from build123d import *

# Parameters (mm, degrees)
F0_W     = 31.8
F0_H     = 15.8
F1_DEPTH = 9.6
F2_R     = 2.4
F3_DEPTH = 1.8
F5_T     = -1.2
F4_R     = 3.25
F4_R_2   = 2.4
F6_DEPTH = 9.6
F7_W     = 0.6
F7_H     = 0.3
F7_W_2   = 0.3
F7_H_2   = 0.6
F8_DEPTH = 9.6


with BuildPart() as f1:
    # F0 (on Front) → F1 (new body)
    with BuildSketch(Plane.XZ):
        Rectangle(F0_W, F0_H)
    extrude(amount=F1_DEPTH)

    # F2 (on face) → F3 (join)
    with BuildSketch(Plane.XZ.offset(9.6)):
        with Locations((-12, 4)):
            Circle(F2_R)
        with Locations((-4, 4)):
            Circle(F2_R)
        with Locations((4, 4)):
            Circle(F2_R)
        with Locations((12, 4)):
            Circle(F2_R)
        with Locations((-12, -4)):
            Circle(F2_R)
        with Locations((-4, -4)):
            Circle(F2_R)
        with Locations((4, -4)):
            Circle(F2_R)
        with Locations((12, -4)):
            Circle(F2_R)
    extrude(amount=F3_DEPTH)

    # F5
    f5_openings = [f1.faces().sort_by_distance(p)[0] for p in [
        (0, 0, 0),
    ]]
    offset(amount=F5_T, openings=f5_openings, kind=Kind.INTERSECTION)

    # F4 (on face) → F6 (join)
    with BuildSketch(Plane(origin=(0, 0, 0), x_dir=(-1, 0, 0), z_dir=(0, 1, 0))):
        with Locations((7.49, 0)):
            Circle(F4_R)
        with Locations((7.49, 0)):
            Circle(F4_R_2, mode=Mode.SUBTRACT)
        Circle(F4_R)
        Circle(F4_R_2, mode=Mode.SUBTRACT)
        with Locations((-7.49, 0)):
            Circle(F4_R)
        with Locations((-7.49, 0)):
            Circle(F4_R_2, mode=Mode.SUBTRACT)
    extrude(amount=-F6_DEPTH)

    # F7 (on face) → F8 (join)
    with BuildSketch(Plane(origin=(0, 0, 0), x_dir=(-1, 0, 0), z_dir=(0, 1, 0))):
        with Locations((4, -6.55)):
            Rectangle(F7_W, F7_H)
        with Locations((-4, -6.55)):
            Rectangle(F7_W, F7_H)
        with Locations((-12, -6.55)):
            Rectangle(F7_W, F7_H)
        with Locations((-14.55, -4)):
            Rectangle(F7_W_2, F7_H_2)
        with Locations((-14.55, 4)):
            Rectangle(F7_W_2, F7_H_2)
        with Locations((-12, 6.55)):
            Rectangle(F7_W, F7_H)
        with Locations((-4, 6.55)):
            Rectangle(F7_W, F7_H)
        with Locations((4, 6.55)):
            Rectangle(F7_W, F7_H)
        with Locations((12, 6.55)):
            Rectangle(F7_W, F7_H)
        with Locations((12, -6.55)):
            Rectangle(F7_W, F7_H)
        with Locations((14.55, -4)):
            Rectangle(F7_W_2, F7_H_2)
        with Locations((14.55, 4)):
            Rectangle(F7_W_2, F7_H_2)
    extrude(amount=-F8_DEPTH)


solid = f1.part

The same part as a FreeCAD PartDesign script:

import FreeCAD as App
import Part
import Sketcher
Q = App.Units.Quantity


def faces_at(feature, points):
    """Names of the faces that lie closest to the given points."""
    faces = feature.Shape.Faces
    near = lambda p: min(range(len(faces)), key=lambda i: faces[i].distToShape(Part.Vertex(*p))[0])
    return sorted({f"Face{near(p) + 1}" for p in points})

doc = App.newDocument("Part")
body = doc.addObject("PartDesign::Body", "Body")

sketch1 = doc.addObject("Sketcher::SketchObject", "Sketch")
body.addObject(sketch1)
sketch1.AttachmentSupport = (doc.XZ_Plane, [""])
sketch1.MapMode = "FlatFace"
sketch1.addGeometry(Part.LineSegment(App.Vector(-16, 8, 0), App.Vector(-16, -8, 0)), False)
sketch1.addGeometry(Part.LineSegment(App.Vector(-16, -8, 0), App.Vector(16, -8, 0)), False)
sketch1.addGeometry(Part.LineSegment(App.Vector(16, -8, 0), App.Vector(16, 8, 0)), False)
sketch1.addGeometry(Part.LineSegment(App.Vector(16, 8, 0), App.Vector(-16, 8, 0)), False)
sketch1.addConstraint(Sketcher.Constraint("Coincident", 0, 2, 1, 1))
sketch1.addConstraint(Sketcher.Constraint("Coincident", 1, 2, 2, 1))
sketch1.addConstraint(Sketcher.Constraint("Coincident", 2, 2, 3, 1))
sketch1.addConstraint(Sketcher.Constraint("Coincident", 3, 2, 0, 1))
sketch1.addConstraint(Sketcher.Constraint("Vertical", 0))
sketch1.addConstraint(Sketcher.Constraint("Horizontal", 1))
sketch1.addConstraint(Sketcher.Constraint("Vertical", 2))
sketch1.addConstraint(Sketcher.Constraint("Horizontal", 3))
sketch1.addConstraint(Sketcher.Constraint("Symmetric", 0, 2, 2, 2, -1, 1))
sketch1.addConstraint(Sketcher.Constraint("DistanceX", 1, 1, 1, 2, Q("31.8 mm")))
sketch1.addConstraint(Sketcher.Constraint("DistanceY", 0, 2, 0, 1, Q("15.8 mm")))
pad1 = doc.addObject("PartDesign::Pad", "Pad")
body.addObject(pad1)
pad1.Profile = sketch1
pad1.Length = 9.6

sketch2 = doc.addObject("Sketcher::SketchObject", "Sketch001")
body.addObject(sketch2)
sketch2.AttachmentSupport = (doc.XZ_Plane, [""])
sketch2.MapMode = "FlatFace"
sketch2.AttachmentOffset = App.Placement(App.Vector(0, 0, 9.6), App.Rotation())
sketch2.addGeometry(Part.Circle(App.Vector(-12, 4, 0), App.Vector(0, 0, 1), 2.4), False)
sketch2.addGeometry(Part.Circle(App.Vector(-4, 4, 0), App.Vector(0, 0, 1), 2.4), False)
sketch2.addGeometry(Part.Circle(App.Vector(4, 4, 0), App.Vector(0, 0, 1), 2.4), False)
sketch2.addGeometry(Part.Circle(App.Vector(12, 4, 0), App.Vector(0, 0, 1), 2.4), False)
sketch2.addGeometry(Part.Circle(App.Vector(-12, -4, 0), App.Vector(0, 0, 1), 2.4), False)
sketch2.addGeometry(Part.Circle(App.Vector(-4, -4, 0), App.Vector(0, 0, 1), 2.4), False)
sketch2.addGeometry(Part.Circle(App.Vector(4, -4, 0), App.Vector(0, 0, 1), 2.4), False)
sketch2.addGeometry(Part.Circle(App.Vector(12, -4, 0), App.Vector(0, 0, 1), 2.4), False)
sketch2.addConstraint(Sketcher.Constraint("Equal", 0, 1))
sketch2.addConstraint(Sketcher.Constraint("Equal", 1, 2))
sketch2.addConstraint(Sketcher.Constraint("Equal", 2, 3))
sketch2.addConstraint(Sketcher.Constraint("Equal", 3, 4))
sketch2.addConstraint(Sketcher.Constraint("Equal", 4, 5))
sketch2.addConstraint(Sketcher.Constraint("Equal", 5, 6))
sketch2.addConstraint(Sketcher.Constraint("Equal", 6, 7))
sketch2.addConstraint(Sketcher.Constraint("Symmetric", 3, 3, 4, 3, -1, 1))
sketch2.addConstraint(Sketcher.Constraint("Symmetric", 2, 3, 5, 3, -1, 1))
sketch2.addConstraint(Sketcher.Constraint("Symmetric", 1, 3, 6, 3, -1, 1))
sketch2.addConstraint(Sketcher.Constraint("Symmetric", 0, 3, 7, 3, -1, 1))
sketch2.addConstraint(Sketcher.Constraint("Symmetric", 1, 3, 2, 3, -2))
sketch2.addConstraint(Sketcher.Constraint("Symmetric", 0, 3, 3, 3, -2))
sketch2.addConstraint(Sketcher.Constraint("Horizontal", 0, 3, 1, 3))
sketch2.addConstraint(Sketcher.Constraint("Diameter", 0, Q("4.8 mm")))
sketch2.addConstraint(Sketcher.Constraint("DistanceX", 0, 3, -1, 1, Q("12 mm")))
sketch2.addConstraint(Sketcher.Constraint("DistanceY", -1, 1, 0, 3, Q("4 mm")))
sketch2.addConstraint(Sketcher.Constraint("DistanceX", 1, 3, -1, 1, Q("4 mm")))
pad2 = doc.addObject("PartDesign::Pad", "Pad001")
body.addObject(pad2)
pad2.Profile = sketch2
pad2.Length = 1.8
doc.recompute()

thickness = doc.addObject("PartDesign::Thickness", "Thickness")
body.addObject(thickness)
thickness.Base = (pad2, faces_at(pad2, [(0, 0, 0)]))
thickness.Value = 1.2
thickness.Reversed = True
thickness.Join = "Intersection"

sketch3 = doc.addObject("Sketcher::SketchObject", "Sketch002")
body.addObject(sketch3)
sketch3.AttachmentSupport = (doc.XZ_Plane, [""])
sketch3.MapMode = "FlatFace"
sketch3.addGeometry(Part.Circle(App.Vector(-7.5, 0, 0), App.Vector(0, 0, 1), 3.2), False)
sketch3.addGeometry(Part.Circle(App.Vector(-7.5, 0, 0), App.Vector(0, 0, 1), 2.4), False)
sketch3.addGeometry(Part.Circle(App.Vector(0, 0, 0), App.Vector(0, 0, 1), 3.2), False)
sketch3.addGeometry(Part.Circle(App.Vector(0, 0, 0), App.Vector(0, 0, 1), 2.4), False)
sketch3.addGeometry(Part.Circle(App.Vector(7.5, 0, 0), App.Vector(0, 0, 1), 3.2), False)
sketch3.addGeometry(Part.Circle(App.Vector(7.5, 0, 0), App.Vector(0, 0, 1), 2.4), False)
sketch3.addConstraint(Sketcher.Constraint("Coincident", 2, 3, -1, 1))
sketch3.addConstraint(Sketcher.Constraint("Coincident", 3, 3, -1, 1))
sketch3.addConstraint(Sketcher.Constraint("Coincident", 1, 3, 0, 3))
sketch3.addConstraint(Sketcher.Constraint("Coincident", 5, 3, 4, 3))
sketch3.addConstraint(Sketcher.Constraint("Equal", 0, 2))
sketch3.addConstraint(Sketcher.Constraint("Equal", 1, 3))
sketch3.addConstraint(Sketcher.Constraint("Equal", 2, 4))
sketch3.addConstraint(Sketcher.Constraint("Equal", 3, 5))
sketch3.addConstraint(Sketcher.Constraint("Symmetric", 0, 3, 4, 3, -1, 1))
sketch3.addConstraint(Sketcher.Constraint("PointOnObject", 0, 3, -1))
sketch3.addConstraint(Sketcher.Constraint("Diameter", 0, Q("6.5 mm")))
sketch3.addConstraint(Sketcher.Constraint("Diameter", 1, Q("4.8 mm")))
sketch3.addConstraint(Sketcher.Constraint("DistanceX", 0, 3, -1, 1, Q("7.49 mm")))
pad3 = doc.addObject("PartDesign::Pad", "Pad002")
body.addObject(pad3)
pad3.Profile = sketch3
pad3.Length = 9.6

sketch4 = doc.addObject("Sketcher::SketchObject", "Sketch003")
body.addObject(sketch4)
sketch4.AttachmentSupport = (doc.XZ_Plane, [""])
sketch4.MapMode = "FlatFace"
sketch4.addGeometry(Part.LineSegment(App.Vector(-3.7, -6.4, 0), App.Vector(-3.7, -6.7, 0)), False)
sketch4.addGeometry(Part.LineSegment(App.Vector(-3.7, -6.7, 0), App.Vector(-4.3, -6.7, 0)), False)
sketch4.addGeometry(Part.LineSegment(App.Vector(-4.3, -6.7, 0), App.Vector(-4.3, -6.4, 0)), False)
sketch4.addGeometry(Part.LineSegment(App.Vector(-4.3, -6.4, 0), App.Vector(-3.7, -6.4, 0)), False)
sketch4.addGeometry(Part.LineSegment(App.Vector(4.3, -6.4, 0), App.Vector(4.3, -6.7, 0)), False)
sketch4.addGeometry(Part.LineSegment(App.Vector(4.3, -6.7, 0), App.Vector(3.7, -6.7, 0)), False)
sketch4.addGeometry(Part.LineSegment(App.Vector(3.7, -6.7, 0), App.Vector(3.7, -6.4, 0)), False)
sketch4.addGeometry(Part.LineSegment(App.Vector(3.7, -6.4, 0), App.Vector(4.3, -6.4, 0)), False)
sketch4.addGeometry(Part.LineSegment(App.Vector(12.3, -6.4, 0), App.Vector(12.3, -6.7, 0)), False)
sketch4.addGeometry(Part.LineSegment(App.Vector(12.3, -6.7, 0), App.Vector(11.7, -6.7, 0)), False)
sketch4.addGeometry(Part.LineSegment(App.Vector(11.7, -6.7, 0), App.Vector(11.7, -6.4, 0)), False)
sketch4.addGeometry(Part.LineSegment(App.Vector(11.7, -6.4, 0), App.Vector(12.3, -6.4, 0)), False)
sketch4.addGeometry(Part.LineSegment(App.Vector(14.7, -3.7, 0), App.Vector(14.7, -4.3, 0)), False)
sketch4.addGeometry(Part.LineSegment(App.Vector(14.7, -4.3, 0), App.Vector(14.4, -4.3, 0)), False)
sketch4.addGeometry(Part.LineSegment(App.Vector(14.4, -4.3, 0), App.Vector(14.4, -3.7, 0)), False)
sketch4.addGeometry(Part.LineSegment(App.Vector(14.4, -3.7, 0), App.Vector(14.7, -3.7, 0)), False)
sketch4.addGeometry(Part.LineSegment(App.Vector(14.7, 4.3, 0), App.Vector(14.7, 3.7, 0)), False)
sketch4.addGeometry(Part.LineSegment(App.Vector(14.7, 3.7, 0), App.Vector(14.4, 3.7, 0)), False)
sketch4.addGeometry(Part.LineSegment(App.Vector(14.4, 3.7, 0), App.Vector(14.4, 4.3, 0)), False)
sketch4.addGeometry(Part.LineSegment(App.Vector(14.4, 4.3, 0), App.Vector(14.7, 4.3, 0)), False)
sketch4.addGeometry(Part.LineSegment(App.Vector(12.3, 6.7, 0), App.Vector(12.3, 6.4, 0)), False)
sketch4.addGeometry(Part.LineSegment(App.Vector(12.3, 6.4, 0), App.Vector(11.7, 6.4, 0)), False)
sketch4.addGeometry(Part.LineSegment(App.Vector(11.7, 6.4, 0), App.Vector(11.7, 6.7, 0)), False)
sketch4.addGeometry(Part.LineSegment(App.Vector(11.7, 6.7, 0), App.Vector(12.3, 6.7, 0)), False)
sketch4.addGeometry(Part.LineSegment(App.Vector(4.3, 6.7, 0), App.Vector(4.3, 6.4, 0)), False)
sketch4.addGeometry(Part.LineSegment(App.Vector(4.3, 6.4, 0), App.Vector(3.7, 6.4, 0)), False)
sketch4.addGeometry(Part.LineSegment(App.Vector(3.7, 6.4, 0), App.Vector(3.7, 6.7, 0)), False)
sketch4.addGeometry(Part.LineSegment(App.Vector(3.7, 6.7, 0), App.Vector(4.3, 6.7, 0)), False)
sketch4.addGeometry(Part.LineSegment(App.Vector(-3.7, 6.7, 0), App.Vector(-3.7, 6.4, 0)), False)
sketch4.addGeometry(Part.LineSegment(App.Vector(-3.7, 6.4, 0), App.Vector(-4.3, 6.4, 0)), False)
sketch4.addGeometry(Part.LineSegment(App.Vector(-4.3, 6.4, 0), App.Vector(-4.3, 6.7, 0)), False)
sketch4.addGeometry(Part.LineSegment(App.Vector(-4.3, 6.7, 0), App.Vector(-3.7, 6.7, 0)), False)
sketch4.addGeometry(Part.LineSegment(App.Vector(-11.7, 6.7, 0), App.Vector(-11.7, 6.4, 0)), False)
sketch4.addGeometry(Part.LineSegment(App.Vector(-11.7, 6.4, 0), App.Vector(-12.3, 6.4, 0)), False)
sketch4.addGeometry(Part.LineSegment(App.Vector(-12.3, 6.4, 0), App.Vector(-12.3, 6.7, 0)), False)
sketch4.addGeometry(Part.LineSegment(App.Vector(-12.3, 6.7, 0), App.Vector(-11.7, 6.7, 0)), False)
sketch4.addGeometry(Part.LineSegment(App.Vector(-11.7, -6.4, 0), App.Vector(-11.7, -6.7, 0)), False)
sketch4.addGeometry(Part.LineSegment(App.Vector(-11.7, -6.7, 0), App.Vector(-12.3, -6.7, 0)), False)
sketch4.addGeometry(Part.LineSegment(App.Vector(-12.3, -6.7, 0), App.Vector(-12.3, -6.4, 0)), False)
sketch4.addGeometry(Part.LineSegment(App.Vector(-12.3, -6.4, 0), App.Vector(-11.7, -6.4, 0)), False)
sketch4.addGeometry(Part.LineSegment(App.Vector(-14.4, -3.7, 0), App.Vector(-14.4, -4.3, 0)), False)
sketch4.addGeometry(Part.LineSegment(App.Vector(-14.4, -4.3, 0), App.Vector(-14.7, -4.3, 0)), False)
sketch4.addGeometry(Part.LineSegment(App.Vector(-14.7, -4.3, 0), App.Vector(-14.7, -3.7, 0)), False)
sketch4.addGeometry(Part.LineSegment(App.Vector(-14.7, -3.7, 0), App.Vector(-14.4, -3.7, 0)), False)
sketch4.addGeometry(Part.LineSegment(App.Vector(-14.4, 4.3, 0), App.Vector(-14.4, 3.7, 0)), False)
sketch4.addGeometry(Part.LineSegment(App.Vector(-14.4, 3.7, 0), App.Vector(-14.7, 3.7, 0)), False)
sketch4.addGeometry(Part.LineSegment(App.Vector(-14.7, 3.7, 0), App.Vector(-14.7, 4.3, 0)), False)
sketch4.addGeometry(Part.LineSegment(App.Vector(-14.7, 4.3, 0), App.Vector(-14.4, 4.3, 0)), False)
sketch4.addConstraint(Sketcher.Constraint("Coincident", 0, 2, 1, 1))
sketch4.addConstraint(Sketcher.Constraint("Coincident", 1, 2, 2, 1))
sketch4.addConstraint(Sketcher.Constraint("Coincident", 2, 2, 3, 1))
sketch4.addConstraint(Sketcher.Constraint("Coincident", 3, 2, 0, 1))
sketch4.addConstraint(Sketcher.Constraint("Coincident", 4, 2, 5, 1))
sketch4.addConstraint(Sketcher.Constraint("Coincident", 5, 2, 6, 1))
sketch4.addConstraint(Sketcher.Constraint("Coincident", 6, 2, 7, 1))
sketch4.addConstraint(Sketcher.Constraint("Coincident", 7, 2, 4, 1))
sketch4.addConstraint(Sketcher.Constraint("Coincident", 8, 2, 9, 1))
sketch4.addConstraint(Sketcher.Constraint("Coincident", 9, 2, 10, 1))
sketch4.addConstraint(Sketcher.Constraint("Coincident", 10, 2, 11, 1))
sketch4.addConstraint(Sketcher.Constraint("Coincident", 11, 2, 8, 1))
sketch4.addConstraint(Sketcher.Constraint("Coincident", 12, 2, 13, 1))
sketch4.addConstraint(Sketcher.Constraint("Coincident", 13, 2, 14, 1))
sketch4.addConstraint(Sketcher.Constraint("Coincident", 14, 2, 15, 1))
sketch4.addConstraint(Sketcher.Constraint("Coincident", 15, 2, 12, 1))
sketch4.addConstraint(Sketcher.Constraint("Coincident", 16, 2, 17, 1))
sketch4.addConstraint(Sketcher.Constraint("Coincident", 17, 2, 18, 1))
sketch4.addConstraint(Sketcher.Constraint("Coincident", 18, 2, 19, 1))
sketch4.addConstraint(Sketcher.Constraint("Coincident", 19, 2, 16, 1))
sketch4.addConstraint(Sketcher.Constraint("Coincident", 20, 2, 21, 1))
sketch4.addConstraint(Sketcher.Constraint("Coincident", 21, 2, 22, 1))
sketch4.addConstraint(Sketcher.Constraint("Coincident", 22, 2, 23, 1))
sketch4.addConstraint(Sketcher.Constraint("Coincident", 23, 2, 20, 1))
sketch4.addConstraint(Sketcher.Constraint("Coincident", 24, 2, 25, 1))
sketch4.addConstraint(Sketcher.Constraint("Coincident", 25, 2, 26, 1))
sketch4.addConstraint(Sketcher.Constraint("Coincident", 26, 2, 27, 1))
sketch4.addConstraint(Sketcher.Constraint("Coincident", 27, 2, 24, 1))
sketch4.addConstraint(Sketcher.Constraint("Coincident", 28, 2, 29, 1))
sketch4.addConstraint(Sketcher.Constraint("Coincident", 29, 2, 30, 1))
sketch4.addConstraint(Sketcher.Constraint("Coincident", 30, 2, 31, 1))
sketch4.addConstraint(Sketcher.Constraint("Coincident", 31, 2, 28, 1))
sketch4.addConstraint(Sketcher.Constraint("Coincident", 32, 2, 33, 1))
sketch4.addConstraint(Sketcher.Constraint("Coincident", 33, 2, 34, 1))
sketch4.addConstraint(Sketcher.Constraint("Coincident", 34, 2, 35, 1))
sketch4.addConstraint(Sketcher.Constraint("Coincident", 35, 2, 32, 1))
sketch4.addConstraint(Sketcher.Constraint("Coincident", 36, 2, 37, 1))
sketch4.addConstraint(Sketcher.Constraint("Coincident", 37, 2, 38, 1))
sketch4.addConstraint(Sketcher.Constraint("Coincident", 38, 2, 39, 1))
sketch4.addConstraint(Sketcher.Constraint("Coincident", 39, 2, 36, 1))
sketch4.addConstraint(Sketcher.Constraint("Coincident", 40, 2, 41, 1))
sketch4.addConstraint(Sketcher.Constraint("Coincident", 41, 2, 42, 1))
sketch4.addConstraint(Sketcher.Constraint("Coincident", 42, 2, 43, 1))
sketch4.addConstraint(Sketcher.Constraint("Coincident", 43, 2, 40, 1))
sketch4.addConstraint(Sketcher.Constraint("Coincident", 44, 2, 45, 1))
sketch4.addConstraint(Sketcher.Constraint("Coincident", 45, 2, 46, 1))
sketch4.addConstraint(Sketcher.Constraint("Coincident", 46, 2, 47, 1))
sketch4.addConstraint(Sketcher.Constraint("Coincident", 47, 2, 44, 1))
sketch4.addConstraint(Sketcher.Constraint("Vertical", 0))
sketch4.addConstraint(Sketcher.Constraint("Horizontal", 1))
sketch4.addConstraint(Sketcher.Constraint("Vertical", 2))
sketch4.addConstraint(Sketcher.Constraint("Horizontal", 3))
sketch4.addConstraint(Sketcher.Constraint("Vertical", 4))
sketch4.addConstraint(Sketcher.Constraint("Horizontal", 5))
sketch4.addConstraint(Sketcher.Constraint("Vertical", 6))
sketch4.addConstraint(Sketcher.Constraint("Horizontal", 7))
sketch4.addConstraint(Sketcher.Constraint("Vertical", 8))
sketch4.addConstraint(Sketcher.Constraint("Horizontal", 9))
sketch4.addConstraint(Sketcher.Constraint("Vertical", 10))
sketch4.addConstraint(Sketcher.Constraint("Horizontal", 11))
sketch4.addConstraint(Sketcher.Constraint("Vertical", 12))
sketch4.addConstraint(Sketcher.Constraint("Horizontal", 13))
sketch4.addConstraint(Sketcher.Constraint("Vertical", 14))
sketch4.addConstraint(Sketcher.Constraint("Horizontal", 15))
sketch4.addConstraint(Sketcher.Constraint("Vertical", 16))
sketch4.addConstraint(Sketcher.Constraint("Horizontal", 17))
sketch4.addConstraint(Sketcher.Constraint("Vertical", 18))
sketch4.addConstraint(Sketcher.Constraint("Horizontal", 19))
sketch4.addConstraint(Sketcher.Constraint("Vertical", 20))
sketch4.addConstraint(Sketcher.Constraint("Horizontal", 21))
sketch4.addConstraint(Sketcher.Constraint("Vertical", 22))
sketch4.addConstraint(Sketcher.Constraint("Horizontal", 23))
sketch4.addConstraint(Sketcher.Constraint("Vertical", 24))
sketch4.addConstraint(Sketcher.Constraint("Horizontal", 25))
sketch4.addConstraint(Sketcher.Constraint("Vertical", 26))
sketch4.addConstraint(Sketcher.Constraint("Horizontal", 27))
sketch4.addConstraint(Sketcher.Constraint("Vertical", 28))
sketch4.addConstraint(Sketcher.Constraint("Horizontal", 29))
sketch4.addConstraint(Sketcher.Constraint("Vertical", 30))
sketch4.addConstraint(Sketcher.Constraint("Horizontal", 31))
sketch4.addConstraint(Sketcher.Constraint("Vertical", 32))
sketch4.addConstraint(Sketcher.Constraint("Horizontal", 33))
sketch4.addConstraint(Sketcher.Constraint("Vertical", 34))
sketch4.addConstraint(Sketcher.Constraint("Horizontal", 35))
sketch4.addConstraint(Sketcher.Constraint("Vertical", 36))
sketch4.addConstraint(Sketcher.Constraint("Horizontal", 37))
sketch4.addConstraint(Sketcher.Constraint("Vertical", 38))
sketch4.addConstraint(Sketcher.Constraint("Horizontal", 39))
sketch4.addConstraint(Sketcher.Constraint("Vertical", 40))
sketch4.addConstraint(Sketcher.Constraint("Horizontal", 41))
sketch4.addConstraint(Sketcher.Constraint("Vertical", 42))
sketch4.addConstraint(Sketcher.Constraint("Horizontal", 43))
sketch4.addConstraint(Sketcher.Constraint("Vertical", 44))
sketch4.addConstraint(Sketcher.Constraint("Horizontal", 45))
sketch4.addConstraint(Sketcher.Constraint("Vertical", 46))
sketch4.addConstraint(Sketcher.Constraint("Horizontal", 47))
sketch4.addConstraint(Sketcher.Constraint("Symmetric", 2, 2, 24, 2, -1, 1))
sketch4.addConstraint(Sketcher.Constraint("Symmetric", 0, 2, 26, 2, -1, 1))
sketch4.addConstraint(Sketcher.Constraint("Symmetric", 6, 2, 28, 2, -1, 1))
sketch4.addConstraint(Sketcher.Constraint("Symmetric", 4, 2, 30, 2, -1, 1))
sketch4.addConstraint(Sketcher.Constraint("Symmetric", 10, 2, 32, 2, -1, 1))
sketch4.addConstraint(Sketcher.Constraint("Symmetric", 8, 2, 34, 2, -1, 1))
sketch4.addConstraint(Sketcher.Constraint("Symmetric", 22, 2, 36, 2, -1, 1))
sketch4.addConstraint(Sketcher.Constraint("Symmetric", 20, 2, 38, 2, -1, 1))
sketch4.addConstraint(Sketcher.Constraint("Symmetric", 18, 2, 40, 2, -1, 1))
sketch4.addConstraint(Sketcher.Constraint("Symmetric", 16, 2, 42, 2, -1, 1))
sketch4.addConstraint(Sketcher.Constraint("Symmetric", 14, 2, 44, 2, -1, 1))
sketch4.addConstraint(Sketcher.Constraint("Symmetric", 12, 2, 46, 2, -1, 1))
sketch4.addConstraint(Sketcher.Constraint("Symmetric", 1, 2, 4, 2, -2))
sketch4.addConstraint(Sketcher.Constraint("Symmetric", 3, 2, 6, 2, -2))
sketch4.addConstraint(Sketcher.Constraint("Symmetric", 21, 2, 32, 2, -2))
sketch4.addConstraint(Sketcher.Constraint("Symmetric", 23, 2, 34, 2, -2))
sketch4.addConstraint(Sketcher.Constraint("Symmetric", 13, 2, 40, 2, -2))
sketch4.addConstraint(Sketcher.Constraint("Symmetric", 15, 2, 42, 2, -2))
sketch4.addConstraint(Sketcher.Constraint("Horizontal", 5, 2, 8, 2))
sketch4.addConstraint(Sketcher.Constraint("Horizontal", 7, 2, 10, 2))
sketch4.addConstraint(Sketcher.Constraint("Equal", 7, 9))
sketch4.addConstraint(Sketcher.Constraint("Equal", 47, 0))
sketch4.addConstraint(Sketcher.Constraint("Equal", 39, 12))
sketch4.addConstraint(Sketcher.Constraint("DistanceX", 1, 2, 1, 1, Q("0.6 mm")))
sketch4.addConstraint(Sketcher.Constraint("DistanceX", 13, 2, 13, 1, Q("0.3 mm")))
sketch4.addConstraint(Sketcher.Constraint("DistanceX", 0, 2, 4, 2, Q("8 mm")))
sketch4.addConstraint(Sketcher.Constraint("DistanceX", 4, 2, 8, 2, Q("8 mm")))
sketch4.addConstraint(Sketcher.Constraint("DistanceX", 10, 2, 12, 2, Q("3 mm")))
sketch4.addConstraint(Sketcher.Constraint("DistanceY", 8, 2, 14, 2, Q("3 mm")))
sketch4.addConstraint(Sketcher.Constraint("DistanceY", 12, 2, 16, 2, Q("8 mm")))
pad4 = doc.addObject("PartDesign::Pad", "Pad003")
body.addObject(pad4)
pad4.Profile = sketch4
pad4.Length = 9.6

doc.recompute()
